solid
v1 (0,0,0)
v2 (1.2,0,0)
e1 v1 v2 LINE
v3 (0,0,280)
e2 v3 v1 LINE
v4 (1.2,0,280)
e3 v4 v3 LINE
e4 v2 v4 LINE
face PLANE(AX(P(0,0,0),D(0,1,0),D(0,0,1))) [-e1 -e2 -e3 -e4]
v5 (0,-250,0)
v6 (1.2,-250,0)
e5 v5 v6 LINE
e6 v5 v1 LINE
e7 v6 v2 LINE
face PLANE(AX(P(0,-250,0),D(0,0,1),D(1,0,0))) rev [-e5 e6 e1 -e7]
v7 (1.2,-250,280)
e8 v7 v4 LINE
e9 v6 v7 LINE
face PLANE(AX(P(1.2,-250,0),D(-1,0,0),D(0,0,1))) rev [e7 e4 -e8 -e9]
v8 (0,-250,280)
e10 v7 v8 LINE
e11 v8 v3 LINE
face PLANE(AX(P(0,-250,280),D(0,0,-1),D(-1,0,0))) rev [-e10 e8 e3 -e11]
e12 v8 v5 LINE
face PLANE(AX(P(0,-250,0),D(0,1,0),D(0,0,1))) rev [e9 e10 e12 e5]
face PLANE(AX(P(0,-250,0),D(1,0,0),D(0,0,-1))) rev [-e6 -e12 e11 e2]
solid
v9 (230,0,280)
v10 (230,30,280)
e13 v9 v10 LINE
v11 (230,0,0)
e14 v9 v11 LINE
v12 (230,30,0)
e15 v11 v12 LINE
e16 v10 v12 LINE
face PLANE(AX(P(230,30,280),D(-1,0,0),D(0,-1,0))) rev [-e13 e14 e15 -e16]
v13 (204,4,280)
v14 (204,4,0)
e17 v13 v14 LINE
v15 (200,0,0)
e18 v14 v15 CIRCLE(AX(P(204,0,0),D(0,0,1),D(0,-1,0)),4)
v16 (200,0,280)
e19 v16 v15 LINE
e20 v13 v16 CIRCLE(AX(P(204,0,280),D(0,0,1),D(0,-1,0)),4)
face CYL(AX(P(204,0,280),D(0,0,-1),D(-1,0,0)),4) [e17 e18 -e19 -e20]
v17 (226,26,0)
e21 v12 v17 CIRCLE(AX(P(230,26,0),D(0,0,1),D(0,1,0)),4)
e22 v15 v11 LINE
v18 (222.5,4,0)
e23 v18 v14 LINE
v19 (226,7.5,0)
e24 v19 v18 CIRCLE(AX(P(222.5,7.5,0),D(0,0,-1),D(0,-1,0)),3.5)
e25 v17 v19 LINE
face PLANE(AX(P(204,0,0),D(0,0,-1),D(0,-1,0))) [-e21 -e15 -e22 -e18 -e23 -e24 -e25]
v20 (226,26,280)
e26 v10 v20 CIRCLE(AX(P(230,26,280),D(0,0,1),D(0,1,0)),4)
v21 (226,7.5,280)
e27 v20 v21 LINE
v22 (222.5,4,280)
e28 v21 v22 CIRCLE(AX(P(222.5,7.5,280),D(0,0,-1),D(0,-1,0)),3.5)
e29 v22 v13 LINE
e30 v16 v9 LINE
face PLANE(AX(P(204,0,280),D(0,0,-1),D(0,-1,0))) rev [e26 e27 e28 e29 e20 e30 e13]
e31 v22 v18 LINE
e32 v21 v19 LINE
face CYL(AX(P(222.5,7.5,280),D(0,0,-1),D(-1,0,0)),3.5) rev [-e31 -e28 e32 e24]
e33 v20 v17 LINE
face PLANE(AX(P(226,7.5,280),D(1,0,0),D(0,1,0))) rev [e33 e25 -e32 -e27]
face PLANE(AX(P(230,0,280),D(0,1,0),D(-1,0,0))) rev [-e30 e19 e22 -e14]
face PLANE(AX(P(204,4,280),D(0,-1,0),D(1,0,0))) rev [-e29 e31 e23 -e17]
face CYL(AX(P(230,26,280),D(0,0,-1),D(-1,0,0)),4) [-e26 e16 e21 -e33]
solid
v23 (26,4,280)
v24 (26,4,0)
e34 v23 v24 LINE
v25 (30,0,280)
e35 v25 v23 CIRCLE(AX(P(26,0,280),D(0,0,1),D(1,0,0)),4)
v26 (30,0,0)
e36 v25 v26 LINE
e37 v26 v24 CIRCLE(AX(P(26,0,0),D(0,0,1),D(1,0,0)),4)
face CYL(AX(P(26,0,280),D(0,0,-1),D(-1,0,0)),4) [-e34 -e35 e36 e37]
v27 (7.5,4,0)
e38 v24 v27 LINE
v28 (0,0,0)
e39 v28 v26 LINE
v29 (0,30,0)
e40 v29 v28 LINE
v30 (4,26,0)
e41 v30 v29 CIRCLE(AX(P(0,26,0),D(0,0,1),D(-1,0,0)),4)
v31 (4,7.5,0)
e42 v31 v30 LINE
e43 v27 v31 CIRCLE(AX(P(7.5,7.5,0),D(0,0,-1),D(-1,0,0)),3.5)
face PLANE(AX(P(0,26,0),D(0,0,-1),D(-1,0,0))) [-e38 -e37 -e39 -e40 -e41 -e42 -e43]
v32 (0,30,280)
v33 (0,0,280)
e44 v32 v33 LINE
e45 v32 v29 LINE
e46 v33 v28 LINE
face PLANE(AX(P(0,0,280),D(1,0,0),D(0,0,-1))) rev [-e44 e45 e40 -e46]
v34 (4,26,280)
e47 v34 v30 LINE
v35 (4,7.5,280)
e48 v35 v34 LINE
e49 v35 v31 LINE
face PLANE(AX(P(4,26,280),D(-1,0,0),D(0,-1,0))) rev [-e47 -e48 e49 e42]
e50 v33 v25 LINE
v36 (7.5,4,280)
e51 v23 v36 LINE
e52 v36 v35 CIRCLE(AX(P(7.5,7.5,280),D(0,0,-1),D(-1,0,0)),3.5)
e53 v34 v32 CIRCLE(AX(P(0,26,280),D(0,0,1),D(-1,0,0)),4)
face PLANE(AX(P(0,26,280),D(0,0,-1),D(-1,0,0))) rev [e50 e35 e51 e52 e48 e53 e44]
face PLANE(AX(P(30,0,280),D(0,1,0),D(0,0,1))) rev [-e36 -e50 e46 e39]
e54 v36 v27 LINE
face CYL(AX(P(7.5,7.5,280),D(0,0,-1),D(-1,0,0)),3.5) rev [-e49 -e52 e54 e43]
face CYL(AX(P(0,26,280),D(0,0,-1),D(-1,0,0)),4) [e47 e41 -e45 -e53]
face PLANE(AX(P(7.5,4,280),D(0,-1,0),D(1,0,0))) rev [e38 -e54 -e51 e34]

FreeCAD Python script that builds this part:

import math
import FreeCAD as App
import Part
import Sketcher

V = App.Vector
Q = App.Units.Quantity

doc = App.newDocument("Part")
body = doc.addObject("PartDesign::Body", "Body")

# Sketch on XY plane
sketch1 = body.newObject("Sketcher::SketchObject", "Sketch")
sketch1.AttachmentSupport = (doc.getObject("XY_Plane"), [""])
sketch1.MapMode = "FlatFace"
sketch1.addGeometry(Part.LineSegment(V(0, 30, 0), V(0, 0, 0)), False)
sketch1.addGeometry(Part.LineSegment(V(0, 0, 0), V(30, 0, 0)), False)
sketch1.addGeometry(Part.ArcOfCircle(Part.Circle(V(26, 0, 0), V(0, 0, 1), 4), math.radians(0), math.radians(90)), False)
sketch1.addGeometry(Part.LineSegment(V(26, 4, 0), V(7.5, 4, 0)), False)
sketch1.addGeometry(Part.ArcOfCircle(Part.Circle(V(7.5, 7.5, 0), V(0, 0, 1), 3.5), math.radians(-180), math.radians(-90)), False)
sketch1.addGeometry(Part.LineSegment(V(4, 7.5, 0), V(4, 26, 0)), False)
sketch1.addGeometry(Part.ArcOfCircle(Part.Circle(V(0, 26, 0), V(0, 0, 1), 4), math.radians(0), math.radians(90)), False)
sketch1.addConstraint(Sketcher.Constraint("Coincident", 0, 2, 1, 1))
sketch1.addConstraint(Sketcher.Constraint("Coincident", 1, 2, 2, 1))
sketch1.addConstraint(Sketcher.Constraint("Tangent", 2, 2, 3, 1))
sketch1.addConstraint(Sketcher.Constraint("Tangent", 3, 2, 4, 2))
sketch1.addConstraint(Sketcher.Constraint("Tangent", 4, 1, 5, 1))
sketch1.addConstraint(Sketcher.Constraint("Tangent", 5, 2, 6, 1))
sketch1.addConstraint(Sketcher.Constraint("Coincident", 6, 2, 0, 1))
sketch1.addConstraint(Sketcher.Constraint("Vertical", 0))
sketch1.addConstraint(Sketcher.Constraint("Horizontal", 1))
sketch1.addConstraint(Sketcher.Constraint("Horizontal", 3))
sketch1.addConstraint(Sketcher.Constraint("Vertical", 5))
sketch1.addConstraint(Sketcher.Constraint("Coincident", 0, 2, -1, 1))
sketch1.addConstraint(Sketcher.Constraint("Equal", 2, 6))
sketch1.addConstraint(Sketcher.Constraint("PointOnObject", 2, 3, -1))
sketch1.addConstraint(Sketcher.Constraint("PointOnObject", 6, 3, -2))
sketch1.addConstraint(Sketcher.Constraint("Equal", 1, 0))
sketch1.addConstraint(Sketcher.Constraint("Radius", 2, Q("4 mm")))
sketch1.addConstraint(Sketcher.Constraint("Radius", 4, Q("3.5 mm")))
sketch1.addConstraint(Sketcher.Constraint("DistanceX", 1, 1, 1, 2, Q("30 mm")))
pad1 = body.newObject("PartDesign::Pad", "Pad")
pad1.Profile = sketch1
pad1.Length = 280
body2 = doc.addObject("PartDesign::Body", "Body001")

# Sketch on XY plane
sketch2 = body2.newObject("Sketcher::SketchObject", "Sketch001")
sketch2.AttachmentSupport = (doc.getObject("XY_Plane001"), [""])
sketch2.MapMode = "FlatFace"
sketch2.addGeometry(Part.LineSegment(V(200, 0, 0), V(230, 0, 0)), False)
sketch2.addGeometry(Part.LineSegment(V(230, 0, 0), V(230, 30, 0)), False)
sketch2.addGeometry(Part.ArcOfCircle(Part.Circle(V(230, 26, 0), V(0, 0, 1), 4), math.radians(90), math.radians(180)), False)
sketch2.addGeometry(Part.LineSegment(V(226, 26, 0), V(226, 7.5, 0)), False)
sketch2.addGeometry(Part.ArcOfCircle(Part.Circle(V(222.5, 7.5, 0), V(0, 0, 1), 3.5), math.radians(-90), math.radians(0)), False)
sketch2.addGeometry(Part.LineSegment(V(222.5, 4, 0), V(204, 4, 0)), False)
sketch2.addGeometry(Part.ArcOfCircle(Part.Circle(V(204, 0, 0), V(0, 0, 1), 4), math.radians(90), math.radians(180)), False)
sketch2.addConstraint(Sketcher.Constraint("Coincident", 0, 2, 1, 1))
sketch2.addConstraint(Sketcher.Constraint("Coincident", 1, 2, 2, 1))
sketch2.addConstraint(Sketcher.Constraint("Tangent", 2, 2, 3, 1))
sketch2.addConstraint(Sketcher.Constraint("Tangent", 3, 2, 4, 2))
sketch2.addConstraint(Sketcher.Constraint("Tangent", 4, 1, 5, 1))
sketch2.addConstraint(Sketcher.Constraint("Tangent", 5, 2, 6, 1))
sketch2.addConstraint(Sketcher.Constraint("Coincident", 6, 2, 0, 1))
sketch2.addConstraint(Sketcher.Constraint("Horizontal", 0))
sketch2.addConstraint(Sketcher.Constraint("Vertical", 1))
sketch2.addConstraint(Sketcher.Constraint("Vertical", 3))
sketch2.addConstraint(Sketcher.Constraint("Horizontal", 5))
sketch2.addConstraint(Sketcher.Constraint("Equal", 2, 6))
sketch2.addConstraint(Sketcher.Constraint("PointOnObject", 6, 3, -1))
sketch2.addConstraint(Sketcher.Constraint("PointOnObject", 0, 2, -1))
sketch2.addConstraint(Sketcher.Constraint("Vertical", 2, 3, 0, 2))
sketch2.addConstraint(Sketcher.Constraint("Equal", 0, 1))
sketch2.addConstraint(Sketcher.Constraint("Radius", 2, Q("4 mm")))
sketch2.addConstraint(Sketcher.Constraint("Radius", 4, Q("3.5 mm")))
sketch2.addConstraint(Sketcher.Constraint("DistanceX", 0, 1, 0, 2, Q("30 mm")))
sketch2.addConstraint(Sketcher.Constraint("DistanceX", -1, 1, 2, 3, Q("230 mm")))
pad2 = body2.newObject("PartDesign::Pad", "Pad001")
pad2.Profile = sketch2
pad2.Length = 280
body3 = doc.addObject("PartDesign::Body", "Body002")

# Sketch on XZ plane
sketch3 = body3.newObject("Sketcher::SketchObject", "Sketch002")
sketch3.AttachmentSupport = (doc.getObject("XZ_Plane002"), [""])
sketch3.MapMode = "FlatFace"
sketch3.addGeometry(Part.LineSegment(V(0, 280, 0), V(0, 0, 0)), False)
sketch3.addGeometry(Part.LineSegment(V(0, 0, 0), V(1.2, 0, 0)), False)
sketch3.addGeometry(Part.LineSegment(V(1.2, 0, 0), V(1.2, 280, 0)), False)
sketch3.addGeometry(Part.LineSegment(V(1.2, 280, 0), V(0, 280, 0)), False)
sketch3.addConstraint(Sketcher.Constraint("Coincident", 0, 2, 1, 1))
sketch3.addConstraint(Sketcher.Constraint("Coincident", 1, 2, 2, 1))
sketch3.addConstraint(Sketcher.Constraint("Coincident", 2, 2, 3, 1))
sketch3.addConstraint(Sketcher.Constraint("Coincident", 3, 2, 0, 1))
sketch3.addConstraint(Sketcher.Constraint("Vertical", 0))
sketch3.addConstraint(Sketcher.Constraint("Horizontal", 1))
sketch3.addConstraint(Sketcher.Constraint("Vertical", 2))
sketch3.addConstraint(Sketcher.Constraint("Horizontal", 3))
sketch3.addConstraint(Sketcher.Constraint("Coincident", 0, 2, -1, 1))
sketch3.addConstraint(Sketcher.Constraint("DistanceY", 0, 2, 0, 1, Q("280 mm")))
sketch3.addConstraint(Sketcher.Constraint("DistanceX", 1, 1, 1, 2, Q("1.2 mm")))
pad3 = body3.newObject("PartDesign::Pad", "Pad002")
pad3.Profile = sketch3
pad3.Length = 250

doc.recompute()
